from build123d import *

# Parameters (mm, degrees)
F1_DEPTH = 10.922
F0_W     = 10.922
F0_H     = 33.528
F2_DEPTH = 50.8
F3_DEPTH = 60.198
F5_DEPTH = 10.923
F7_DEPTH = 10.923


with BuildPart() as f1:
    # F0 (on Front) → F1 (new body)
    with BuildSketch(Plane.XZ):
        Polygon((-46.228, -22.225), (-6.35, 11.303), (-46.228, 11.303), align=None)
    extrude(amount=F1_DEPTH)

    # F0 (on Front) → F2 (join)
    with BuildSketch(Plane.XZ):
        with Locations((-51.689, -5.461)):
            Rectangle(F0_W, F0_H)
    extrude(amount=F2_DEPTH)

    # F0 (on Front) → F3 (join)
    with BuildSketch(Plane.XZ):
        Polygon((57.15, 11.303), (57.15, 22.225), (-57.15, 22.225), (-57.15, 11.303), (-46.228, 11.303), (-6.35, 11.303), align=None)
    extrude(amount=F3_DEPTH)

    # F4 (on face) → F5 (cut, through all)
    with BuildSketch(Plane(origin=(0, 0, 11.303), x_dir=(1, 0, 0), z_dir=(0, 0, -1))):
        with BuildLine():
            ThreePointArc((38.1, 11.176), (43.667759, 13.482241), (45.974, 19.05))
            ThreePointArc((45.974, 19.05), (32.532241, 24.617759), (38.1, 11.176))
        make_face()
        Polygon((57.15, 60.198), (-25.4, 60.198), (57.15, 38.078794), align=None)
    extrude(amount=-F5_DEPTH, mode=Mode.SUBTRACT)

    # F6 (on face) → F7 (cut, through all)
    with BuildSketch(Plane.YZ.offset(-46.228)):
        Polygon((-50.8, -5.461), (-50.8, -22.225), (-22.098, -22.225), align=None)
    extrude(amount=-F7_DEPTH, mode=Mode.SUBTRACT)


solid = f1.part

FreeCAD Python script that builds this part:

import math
import FreeCAD as App
import Part
import Sketcher
from FreeCAD import Vector
Q = App.Units.Quantity

doc = App.newDocument("Part")
body = doc.addObject("PartDesign::Body", "Body")

# Sketch on XZ plane
sketch1 = body.newObject("Sketcher::SketchObject", "Sketch")
sketch1.AttachmentSupport = (doc.getObject("XZ_Plane"), [""])
sketch1.MapMode = "FlatFace"
sketch1.addGeometry([
    Part.LineSegment(Vector(-46.228, -22.225, 0), Vector(-6.35, 11.303, 0)),
    Part.LineSegment(Vector(-6.35, 11.303, 0), Vector(-46.228, 11.303, 0)),
    Part.LineSegment(Vector(-46.228, 11.303, 0), Vector(-46.228, -22.225, 0)),
], False)
sketch1.addConstraint([
    Sketcher.Constraint("Coincident", 0, 2, 1, 1),
    Sketcher.Constraint("Coincident", 1, 2, 2, 1),
    Sketcher.Constraint("Coincident", 2, 2, 0, 1),
    Sketcher.Constraint("Horizontal", 1),
    Sketcher.Constraint("Vertical", 2),
    Sketcher.Constraint("DistanceX", 1, 2, 1, 1, Q("1.57 in")),
    Sketcher.Constraint("DistanceY", 2, 2, 2, 1, Q("1.32 in")),
    Sketcher.Constraint("DistanceX", 0, 2, -1, 1, Q("0.25 in")),
    Sketcher.Constraint("DistanceY", -1, 1, 0, 2, Q("0.445 in")),
])
pad1 = body.newObject("PartDesign::Pad", "Pad")
pad1.Profile = sketch1
pad1.Length = Q("0.43 in")

# Sketch on XZ plane
sketch2 = body.newObject("Sketcher::SketchObject", "Sketch001")
sketch2.AttachmentSupport = (doc.getObject("XZ_Plane"), [""])
sketch2.MapMode = "FlatFace"
sketch2.addGeometry([
    Part.LineSegment(Vector(-57.15, 11.303, 0), Vector(-57.15, -22.225, 0)),
    Part.LineSegment(Vector(-57.15, -22.225, 0), Vector(-46.228, -22.225, 0)),
    Part.LineSegment(Vector(-46.228, -22.225, 0), Vector(-46.228, 11.303, 0)),
    Part.LineSegment(Vector(-46.228, 11.303, 0), Vector(-57.15, 11.303, 0)),
], False)
sketch2.addConstraint([
    Sketcher.Constraint("Coincident", 0, 2, 1, 1),
    Sketcher.Constraint("Coincident", 1, 2, 2, 1),
    Sketcher.Constraint("Coincident", 2, 2, 3, 1),
    Sketcher.Constraint("Coincident", 3, 2, 0, 1),
    Sketcher.Constraint("Vertical", 0),
    Sketcher.Constraint("Horizontal", 1),
    Sketcher.Constraint("Vertical", 2),
    Sketcher.Constraint("Horizontal", 3),
    Sketcher.Constraint("DistanceX", 1, 1, 1, 2, Q("0.43 in")),
    Sketcher.Constraint("DistanceY", 0, 2, 0, 1, Q("1.32 in")),
    Sketcher.Constraint("DistanceX", 0, 2, -1, 1, Q("2.25 in")),
    Sketcher.Constraint("DistanceY", 0, 2, -1, 1, Q("0.875 in")),
])
pad2 = body.newObject("PartDesign::Pad", "Pad001")
pad2.Profile = sketch2
pad2.Length = Q("2 in")

# Sketch on XZ plane
sketch3 = body.newObject("Sketcher::SketchObject", "Sketch002")
sketch3.AttachmentSupport = (doc.getObject("XZ_Plane"), [""])
sketch3.MapMode = "FlatFace"
sketch3.addGeometry([
    Part.LineSegment(Vector(57.15, 11.303, 0), Vector(57.15, 22.225, 0)),
    Part.LineSegment(Vector(57.15, 22.225, 0), Vector(-57.15, 22.225, 0)),
    Part.LineSegment(Vector(-57.15, 22.225, 0), Vector(-57.15, 11.303, 0)),
    Part.LineSegment(Vector(-57.15, 11.303, 0), Vector(57.15, 11.303, 0)),
], False)
sketch3.addConstraint([
    Sketcher.Constraint("Coincident", 0, 2, 1, 1),
    Sketcher.Constraint("Coincident", 1, 2, 2, 1),
    Sketcher.Constraint("Coincident", 2, 2, 3, 1),
    Sketcher.Constraint("Coincident", 3, 2, 0, 1),
    Sketcher.Constraint("Vertical", 0),
    Sketcher.Constraint("Horizontal", 1),
    Sketcher.Constraint("Vertical", 2),
    Sketcher.Constraint("Horizontal", 3),
    Sketcher.Constraint("DistanceX", 1, 2, 1, 1, Q("4.5 in")),
    Sketcher.Constraint("DistanceY", 0, 1, 0, 2, Q("0.43 in")),
    Sketcher.Constraint("DistanceX", -1, 1, 0, 2, Q("2.25 in")),
    Sketcher.Constraint("DistanceY", -1, 1, 0, 2, Q("0.875 in")),
])
pad3 = body.newObject("PartDesign::Pad", "Pad002")
pad3.Profile = sketch3
pad3.Length = Q("2.37 in")

# Sketch on XY plane
sketch4 = body.newObject("Sketcher::SketchObject", "Sketch003")
sketch4.AttachmentSupport = (doc.getObject("XY_Plane"), [""])
sketch4.MapMode = "FlatFace"
sketch4.AttachmentOffset = App.Placement(Vector(0, 0, 0.445 * 25.4), App.Rotation())
sketch4.addGeometry([
    Part.ArcOfCircle(Part.Circle(Vector(38.100001, -19.049999, 0), Vector(0, 0, 1), 7.873999), math.radians(-0.000005), math.radians(90.000005)),  # 0
    Part.ArcOfCircle(Part.Circle(Vector(38.1, -19.05, 0), Vector(0, 0, 1), 7.874), math.radians(89.999999), math.radians(360.000001)),  # 1
    Part.LineSegment(Vector(57.15, -60.198, 0), Vector(-25.4, -60.198, 0)),  # 2
    Part.LineSegment(Vector(-25.4, -60.198, 0), Vector(57.15, -38.078794, 0)),  # 3
    Part.LineSegment(Vector(57.15, -38.078794, 0), Vector(57.15, -60.198, 0)),  # 4
], False)
sketch4.addConstraint([
    Sketcher.Constraint("Tangent", 0, 1, 1, 2),
    Sketcher.Constraint("Coincident", 1, 1, 0, 2),
    Sketcher.Constraint("Coincident", 2, 2, 3, 1),
    Sketcher.Constraint("Coincident", 3, 2, 4, 1),
    Sketcher.Constraint("Coincident", 4, 2, 2, 1),
    Sketcher.Constraint("Horizontal", 2),
    Sketcher.Constraint("Vertical", 4),
    Sketcher.Constraint("Horizontal", 1, 3, 0, 1),
    Sketcher.Constraint("Vertical", 0, 3, 1, 1),
    Sketcher.Constraint("Radius", 0, Q("0.31 in")),
    Sketcher.Constraint("DistanceX", 2, 2, -1, 1, Q("1 in")),
    Sketcher.Constraint("Angle", 3, Q("15 deg")),
    Sketcher.Constraint("DistanceX", 2, 2, 2, 1, Q("3.25 in")),
    Sketcher.Constraint("DistanceX", -1, 1, 0, 3, Q("1.5 in")),
    Sketcher.Constraint("DistanceY", 0, 3, -1, 1, Q("0.75 in")),
    Sketcher.Constraint("DistanceY", 2, 2, -1, 1, Q("2.37 in")),
])
pocket1 = body.newObject("PartDesign::Pocket", "Pocket")
pocket1.Profile = sketch4
pocket1.Type = "ThroughAll"
pocket1.Reversed = True

# Sketch on YZ plane
sketch5 = body.newObject("Sketcher::SketchObject", "Sketch004")
sketch5.AttachmentSupport = (doc.getObject("YZ_Plane"), [""])
sketch5.MapMode = "FlatFace"
sketch5.AttachmentOffset = App.Placement(Vector(0, 0, -1.82 * 25.4), App.Rotation())
sketch5.addGeometry([
    Part.LineSegment(Vector(-50.8, -5.461, 0), Vector(-50.8, -22.225, 0)),
    Part.LineSegment(Vector(-50.8, -22.225, 0), Vector(-22.098, -22.225, 0)),
    Part.LineSegment(Vector(-22.098, -22.225, 0), Vector(-50.8, -5.461, 0)),
], False)
sketch5.addConstraint([
    Sketcher.Constraint("Coincident", 0, 2, 1, 1),
    Sketcher.Constraint("Coincident", 1, 2, 2, 1),
    Sketcher.Constraint("Coincident", 2, 2, 0, 1),
    Sketcher.Constraint("Vertical", 0),
    Sketcher.Constraint("Horizontal", 1),
    Sketcher.Constraint("DistanceX", 0, 2, -1, 1, Q("2 in")),
    Sketcher.Constraint("DistanceX", 1, 1, 1, 2, Q("1.13 in")),
    Sketcher.Constraint("DistanceY", 0, 2, 0, 1, Q("0.66 in")),
    Sketcher.Constraint("DistanceY", 0, 2, -1, 1, Q("0.875 in")),
])
pocket2 = body.newObject("PartDesign::Pocket", "Pocket001")
pocket2.Profile = sketch5
pocket2.Type = "ThroughAll"

doc.recompute()
